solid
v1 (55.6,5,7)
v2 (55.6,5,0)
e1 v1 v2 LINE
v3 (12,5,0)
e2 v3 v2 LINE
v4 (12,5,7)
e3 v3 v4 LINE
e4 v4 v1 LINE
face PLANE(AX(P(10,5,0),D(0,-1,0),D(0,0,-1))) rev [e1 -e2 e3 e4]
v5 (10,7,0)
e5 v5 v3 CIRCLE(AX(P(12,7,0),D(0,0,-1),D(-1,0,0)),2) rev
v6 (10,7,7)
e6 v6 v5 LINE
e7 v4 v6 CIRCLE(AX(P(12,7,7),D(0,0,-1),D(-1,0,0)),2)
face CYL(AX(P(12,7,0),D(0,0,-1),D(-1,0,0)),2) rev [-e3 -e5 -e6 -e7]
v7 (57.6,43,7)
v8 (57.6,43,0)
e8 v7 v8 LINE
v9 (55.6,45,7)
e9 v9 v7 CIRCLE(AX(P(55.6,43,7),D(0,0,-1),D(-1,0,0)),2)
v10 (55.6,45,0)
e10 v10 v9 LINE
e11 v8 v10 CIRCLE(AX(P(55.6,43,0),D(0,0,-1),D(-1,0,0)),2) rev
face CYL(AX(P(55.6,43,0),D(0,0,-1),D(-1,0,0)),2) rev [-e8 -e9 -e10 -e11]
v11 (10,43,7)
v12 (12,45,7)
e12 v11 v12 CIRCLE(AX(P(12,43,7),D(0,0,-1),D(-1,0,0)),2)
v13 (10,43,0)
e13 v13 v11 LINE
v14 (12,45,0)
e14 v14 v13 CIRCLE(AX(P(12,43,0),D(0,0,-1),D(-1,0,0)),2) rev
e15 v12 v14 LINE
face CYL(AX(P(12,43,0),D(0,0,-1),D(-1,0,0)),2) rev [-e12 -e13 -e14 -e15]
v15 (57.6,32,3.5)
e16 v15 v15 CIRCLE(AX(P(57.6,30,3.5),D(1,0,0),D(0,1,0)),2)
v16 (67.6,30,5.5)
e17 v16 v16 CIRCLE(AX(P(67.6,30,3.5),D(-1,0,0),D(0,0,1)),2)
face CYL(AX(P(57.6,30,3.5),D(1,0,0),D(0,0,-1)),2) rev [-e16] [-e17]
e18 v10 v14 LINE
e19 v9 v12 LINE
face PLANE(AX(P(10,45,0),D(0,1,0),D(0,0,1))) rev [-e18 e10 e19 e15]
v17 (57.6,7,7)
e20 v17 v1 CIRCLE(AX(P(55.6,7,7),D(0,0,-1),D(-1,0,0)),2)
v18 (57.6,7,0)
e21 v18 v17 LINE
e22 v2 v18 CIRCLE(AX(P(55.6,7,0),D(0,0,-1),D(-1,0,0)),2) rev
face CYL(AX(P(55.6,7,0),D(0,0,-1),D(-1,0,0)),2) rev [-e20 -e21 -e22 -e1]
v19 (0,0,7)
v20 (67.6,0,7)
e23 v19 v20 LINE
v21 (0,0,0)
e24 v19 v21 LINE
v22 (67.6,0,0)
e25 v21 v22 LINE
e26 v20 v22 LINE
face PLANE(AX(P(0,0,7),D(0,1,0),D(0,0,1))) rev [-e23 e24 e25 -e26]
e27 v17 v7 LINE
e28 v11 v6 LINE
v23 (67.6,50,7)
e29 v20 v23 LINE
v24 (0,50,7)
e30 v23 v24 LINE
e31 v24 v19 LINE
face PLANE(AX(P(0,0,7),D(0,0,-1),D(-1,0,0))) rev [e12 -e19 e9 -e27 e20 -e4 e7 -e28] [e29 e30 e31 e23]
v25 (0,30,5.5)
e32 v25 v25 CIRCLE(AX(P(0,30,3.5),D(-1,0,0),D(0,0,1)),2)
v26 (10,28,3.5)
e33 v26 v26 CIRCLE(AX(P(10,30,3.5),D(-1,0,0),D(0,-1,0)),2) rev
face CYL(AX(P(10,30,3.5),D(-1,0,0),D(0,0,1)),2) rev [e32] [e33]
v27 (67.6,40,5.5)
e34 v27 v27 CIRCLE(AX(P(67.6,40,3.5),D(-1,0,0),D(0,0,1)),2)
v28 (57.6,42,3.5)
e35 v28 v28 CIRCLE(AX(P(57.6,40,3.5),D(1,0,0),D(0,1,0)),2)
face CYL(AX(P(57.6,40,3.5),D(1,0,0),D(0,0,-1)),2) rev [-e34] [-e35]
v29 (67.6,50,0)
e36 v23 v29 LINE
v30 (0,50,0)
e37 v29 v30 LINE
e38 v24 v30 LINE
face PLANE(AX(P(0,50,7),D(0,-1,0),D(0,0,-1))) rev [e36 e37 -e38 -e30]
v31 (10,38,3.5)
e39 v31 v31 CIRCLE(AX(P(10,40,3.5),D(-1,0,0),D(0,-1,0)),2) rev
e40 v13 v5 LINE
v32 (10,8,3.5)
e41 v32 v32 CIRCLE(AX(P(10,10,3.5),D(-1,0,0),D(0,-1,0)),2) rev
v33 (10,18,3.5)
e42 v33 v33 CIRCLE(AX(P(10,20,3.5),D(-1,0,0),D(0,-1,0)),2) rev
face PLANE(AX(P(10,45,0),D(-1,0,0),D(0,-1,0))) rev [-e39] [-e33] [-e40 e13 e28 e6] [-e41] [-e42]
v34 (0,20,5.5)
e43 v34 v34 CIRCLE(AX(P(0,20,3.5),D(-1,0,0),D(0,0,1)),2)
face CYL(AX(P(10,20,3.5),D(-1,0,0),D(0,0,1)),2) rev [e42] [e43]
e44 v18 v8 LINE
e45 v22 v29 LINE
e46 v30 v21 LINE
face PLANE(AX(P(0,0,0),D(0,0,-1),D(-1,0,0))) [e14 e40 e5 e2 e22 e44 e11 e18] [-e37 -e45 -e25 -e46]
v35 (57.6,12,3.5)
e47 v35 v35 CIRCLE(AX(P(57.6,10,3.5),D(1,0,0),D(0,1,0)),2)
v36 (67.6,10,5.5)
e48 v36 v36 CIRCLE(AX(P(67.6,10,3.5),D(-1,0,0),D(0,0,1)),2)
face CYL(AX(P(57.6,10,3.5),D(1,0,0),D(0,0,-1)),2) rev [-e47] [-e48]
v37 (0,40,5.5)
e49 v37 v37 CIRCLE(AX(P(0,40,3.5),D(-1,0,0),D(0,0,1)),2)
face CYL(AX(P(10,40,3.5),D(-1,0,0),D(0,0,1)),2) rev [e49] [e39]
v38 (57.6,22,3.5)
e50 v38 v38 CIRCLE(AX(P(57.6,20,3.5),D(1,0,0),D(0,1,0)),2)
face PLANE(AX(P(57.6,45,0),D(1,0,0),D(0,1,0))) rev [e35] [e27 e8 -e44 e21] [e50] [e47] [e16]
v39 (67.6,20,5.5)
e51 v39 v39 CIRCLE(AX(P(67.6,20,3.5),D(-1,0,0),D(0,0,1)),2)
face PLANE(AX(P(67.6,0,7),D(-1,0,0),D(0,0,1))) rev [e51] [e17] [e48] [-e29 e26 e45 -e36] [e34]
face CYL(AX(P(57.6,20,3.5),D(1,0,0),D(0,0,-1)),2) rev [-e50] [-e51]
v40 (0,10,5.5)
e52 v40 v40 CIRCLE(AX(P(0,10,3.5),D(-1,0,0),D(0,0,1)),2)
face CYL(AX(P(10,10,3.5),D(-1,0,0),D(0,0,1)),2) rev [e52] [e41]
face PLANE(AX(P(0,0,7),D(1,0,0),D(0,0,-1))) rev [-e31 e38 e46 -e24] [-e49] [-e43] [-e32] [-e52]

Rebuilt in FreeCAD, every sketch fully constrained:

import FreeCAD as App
import Part
import Sketcher

V = App.Vector


def edges_at(feature, points):
    """Names of the edges that pass closest to the given points."""
    edges = feature.Shape.Edges
    near = lambda p: min(range(len(edges)), key=lambda i: edges[i].distToShape(Part.Vertex(*p))[0])
    return sorted({f"Edge{near(p) + 1}" for p in points})

doc = App.newDocument("Part")
body = doc.addObject("PartDesign::Body", "Body")

# Sketch on XY plane
sketch1 = doc.addObject("Sketcher::SketchObject", "Sketch")
body.addObject(sketch1)
sketch1.AttachmentSupport = (doc.XY_Plane, [""])
sketch1.MapMode = "FlatFace"
sketch1.addGeometry(Part.LineSegment(V(0, 50, 0), V(0, 0, 0)), False)
sketch1.addGeometry(Part.LineSegment(V(0, 0, 0), V(68, 0, 0)), False)
sketch1.addGeometry(Part.LineSegment(V(68, 0, 0), V(68, 50, 0)), False)
sketch1.addGeometry(Part.LineSegment(V(68, 50, 0), V(0, 50, 0)), False)
sketch1.addConstraint(Sketcher.Constraint("Coincident", 0, 2, 1, 1))
sketch1.addConstraint(Sketcher.Constraint("Coincident", 1, 2, 2, 1))
sketch1.addConstraint(Sketcher.Constraint("Coincident", 2, 2, 3, 1))
sketch1.addConstraint(Sketcher.Constraint("Coincident", 3, 2, 0, 1))
sketch1.addConstraint(Sketcher.Constraint("Vertical", 0))
sketch1.addConstraint(Sketcher.Constraint("Horizontal", 1))
sketch1.addConstraint(Sketcher.Constraint("Vertical", 2))
sketch1.addConstraint(Sketcher.Constraint("Horizontal", 3))
sketch1.addConstraint(Sketcher.Constraint("Coincident", 0, 2, -1, 1))
sketch1.addConstraint(Sketcher.Constraint("DistanceY", 0, 2, 0, 1, 50.0))
sketch1.addConstraint(Sketcher.Constraint("DistanceX", 1, 1, 1, 2, 67.6))
pad1 = doc.addObject("PartDesign::Pad", "Pad")
body.addObject(pad1)
pad1.Profile = sketch1
pad1.Length = 7

# Sketch on YZ plane
sketch2 = doc.addObject("Sketcher::SketchObject", "Sketch001")
body.addObject(sketch2)
sketch2.AttachmentSupport = (doc.YZ_Plane, [""])
sketch2.MapMode = "FlatFace"
sketch2.addGeometry(Part.Circle(V(40, 3.5, 0), V(0, 0, 1), 2), False)
sketch2.addGeometry(Part.Circle(V(30, 3.5, 0), V(0, 0, 1), 2), False)
sketch2.addGeometry(Part.Circle(V(20, 3.5, 0), V(0, 0, 1), 2), False)
sketch2.addGeometry(Part.Circle(V(10, 3.5, 0), V(0, 0, 1), 2), False)
sketch2.addConstraint(Sketcher.Constraint("Equal", 0, 1))
sketch2.addConstraint(Sketcher.Constraint("Equal", 1, 2))
sketch2.addConstraint(Sketcher.Constraint("Equal", 2, 3))
sketch2.addConstraint(Sketcher.Constraint("Horizontal", 0, 3, 1, 3))
sketch2.addConstraint(Sketcher.Constraint("Horizontal", 1, 3, 2, 3))
sketch2.addConstraint(Sketcher.Constraint("Horizontal", 2, 3, 3, 3))
sketch2.addConstraint(Sketcher.Constraint("Diameter", 0, 4.0))
sketch2.addConstraint(Sketcher.Constraint("DistanceX", -1, 1, 0, 3, 40.0))
sketch2.addConstraint(Sketcher.Constraint("DistanceX", -1, 1, 1, 3, 30.0))
sketch2.addConstraint(Sketcher.Constraint("DistanceX", -1, 1, 2, 3, 20.0))
sketch2.addConstraint(Sketcher.Constraint("DistanceX", -1, 1, 3, 3, 10.0))
sketch2.addConstraint(Sketcher.Constraint("DistanceY", -1, 1, 0, 3, 3.5))
pocket1 = doc.addObject("PartDesign::Pocket", "Pocket")
body.addObject(pocket1)
pocket1.Profile = sketch2
pocket1.Length = 10
pocket1.Reversed = True
doc.recompute()

datumplane = doc.addObject("PartDesign::Plane", "DatumPlane")
body.addObject(datumplane)
datumplane.AttachmentSupport = (doc.YZ_Plane, [""])
datumplane.MapMode = "FlatFace"
datumplane.AttachmentOffset = App.Placement(V(0, 0, 33.8), App.Rotation())
mirrored = doc.addObject("PartDesign::Mirrored", "Mirrored")
body.addObject(mirrored)
mirrored.Originals = [pocket1]
mirrored.MirrorPlane = (datumplane, [""])
body.Tip = mirrored

# Sketch on XY plane
sketch3 = doc.addObject("Sketcher::SketchObject", "Sketch002")
body.addObject(sketch3)
sketch3.AttachmentSupport = (doc.XY_Plane, [""])
sketch3.MapMode = "FlatFace"
sketch3.AttachmentOffset = App.Placement(V(0, 0, 7), App.Rotation())
sketch3.addGeometry(Part.LineSegment(V(10, 45, 0), V(10, 5, 0)), False)
sketch3.addGeometry(Part.LineSegment(V(10, 5, 0), V(58, 5, 0)), False)
sketch3.addGeometry(Part.LineSegment(V(58, 5, 0), V(58, 45, 0)), False)
sketch3.addGeometry(Part.LineSegment(V(58, 45, 0), V(10, 45, 0)), False)
sketch3.addConstraint(Sketcher.Constraint("Coincident", 0, 2, 1, 1))
sketch3.addConstraint(Sketcher.Constraint("Coincident", 1, 2, 2, 1))
sketch3.addConstraint(Sketcher.Constraint("Coincident", 2, 2, 3, 1))
sketch3.addConstraint(Sketcher.Constraint("Coincident", 3, 2, 0, 1))
sketch3.addConstraint(Sketcher.Constraint("Vertical", 0))
sketch3.addConstraint(Sketcher.Constraint("Horizontal", 1))
sketch3.addConstraint(Sketcher.Constraint("Vertical", 2))
sketch3.addConstraint(Sketcher.Constraint("Horizontal", 3))
sketch3.addConstraint(Sketcher.Constraint("DistanceY", 0, 2, 0, 1, 40.0))
sketch3.addConstraint(Sketcher.Constraint("DistanceX", 1, 1, 1, 2, 47.6))
sketch3.addConstraint(Sketcher.Constraint("DistanceX", -1, 1, 0, 2, 10.0))
sketch3.addConstraint(Sketcher.Constraint("DistanceY", -1, 1, 0, 2, 5.0))
pocket2 = doc.addObject("PartDesign::Pocket", "Pocket001")
body.addObject(pocket2)
pocket2.Profile = sketch3
pocket2.Length = 7
doc.recompute()

fillet = doc.addObject("PartDesign::Fillet", "Fillet")
body.addObject(fillet)
fillet.Base = (pocket2, edges_at(pocket2, [
    (10, 5, 3.5),
    (10, 45, 3.5),
    (57.6, 45, 3.5),
    (57.6, 5, 3.5),
]))
fillet.Radius = 2

doc.recompute()
